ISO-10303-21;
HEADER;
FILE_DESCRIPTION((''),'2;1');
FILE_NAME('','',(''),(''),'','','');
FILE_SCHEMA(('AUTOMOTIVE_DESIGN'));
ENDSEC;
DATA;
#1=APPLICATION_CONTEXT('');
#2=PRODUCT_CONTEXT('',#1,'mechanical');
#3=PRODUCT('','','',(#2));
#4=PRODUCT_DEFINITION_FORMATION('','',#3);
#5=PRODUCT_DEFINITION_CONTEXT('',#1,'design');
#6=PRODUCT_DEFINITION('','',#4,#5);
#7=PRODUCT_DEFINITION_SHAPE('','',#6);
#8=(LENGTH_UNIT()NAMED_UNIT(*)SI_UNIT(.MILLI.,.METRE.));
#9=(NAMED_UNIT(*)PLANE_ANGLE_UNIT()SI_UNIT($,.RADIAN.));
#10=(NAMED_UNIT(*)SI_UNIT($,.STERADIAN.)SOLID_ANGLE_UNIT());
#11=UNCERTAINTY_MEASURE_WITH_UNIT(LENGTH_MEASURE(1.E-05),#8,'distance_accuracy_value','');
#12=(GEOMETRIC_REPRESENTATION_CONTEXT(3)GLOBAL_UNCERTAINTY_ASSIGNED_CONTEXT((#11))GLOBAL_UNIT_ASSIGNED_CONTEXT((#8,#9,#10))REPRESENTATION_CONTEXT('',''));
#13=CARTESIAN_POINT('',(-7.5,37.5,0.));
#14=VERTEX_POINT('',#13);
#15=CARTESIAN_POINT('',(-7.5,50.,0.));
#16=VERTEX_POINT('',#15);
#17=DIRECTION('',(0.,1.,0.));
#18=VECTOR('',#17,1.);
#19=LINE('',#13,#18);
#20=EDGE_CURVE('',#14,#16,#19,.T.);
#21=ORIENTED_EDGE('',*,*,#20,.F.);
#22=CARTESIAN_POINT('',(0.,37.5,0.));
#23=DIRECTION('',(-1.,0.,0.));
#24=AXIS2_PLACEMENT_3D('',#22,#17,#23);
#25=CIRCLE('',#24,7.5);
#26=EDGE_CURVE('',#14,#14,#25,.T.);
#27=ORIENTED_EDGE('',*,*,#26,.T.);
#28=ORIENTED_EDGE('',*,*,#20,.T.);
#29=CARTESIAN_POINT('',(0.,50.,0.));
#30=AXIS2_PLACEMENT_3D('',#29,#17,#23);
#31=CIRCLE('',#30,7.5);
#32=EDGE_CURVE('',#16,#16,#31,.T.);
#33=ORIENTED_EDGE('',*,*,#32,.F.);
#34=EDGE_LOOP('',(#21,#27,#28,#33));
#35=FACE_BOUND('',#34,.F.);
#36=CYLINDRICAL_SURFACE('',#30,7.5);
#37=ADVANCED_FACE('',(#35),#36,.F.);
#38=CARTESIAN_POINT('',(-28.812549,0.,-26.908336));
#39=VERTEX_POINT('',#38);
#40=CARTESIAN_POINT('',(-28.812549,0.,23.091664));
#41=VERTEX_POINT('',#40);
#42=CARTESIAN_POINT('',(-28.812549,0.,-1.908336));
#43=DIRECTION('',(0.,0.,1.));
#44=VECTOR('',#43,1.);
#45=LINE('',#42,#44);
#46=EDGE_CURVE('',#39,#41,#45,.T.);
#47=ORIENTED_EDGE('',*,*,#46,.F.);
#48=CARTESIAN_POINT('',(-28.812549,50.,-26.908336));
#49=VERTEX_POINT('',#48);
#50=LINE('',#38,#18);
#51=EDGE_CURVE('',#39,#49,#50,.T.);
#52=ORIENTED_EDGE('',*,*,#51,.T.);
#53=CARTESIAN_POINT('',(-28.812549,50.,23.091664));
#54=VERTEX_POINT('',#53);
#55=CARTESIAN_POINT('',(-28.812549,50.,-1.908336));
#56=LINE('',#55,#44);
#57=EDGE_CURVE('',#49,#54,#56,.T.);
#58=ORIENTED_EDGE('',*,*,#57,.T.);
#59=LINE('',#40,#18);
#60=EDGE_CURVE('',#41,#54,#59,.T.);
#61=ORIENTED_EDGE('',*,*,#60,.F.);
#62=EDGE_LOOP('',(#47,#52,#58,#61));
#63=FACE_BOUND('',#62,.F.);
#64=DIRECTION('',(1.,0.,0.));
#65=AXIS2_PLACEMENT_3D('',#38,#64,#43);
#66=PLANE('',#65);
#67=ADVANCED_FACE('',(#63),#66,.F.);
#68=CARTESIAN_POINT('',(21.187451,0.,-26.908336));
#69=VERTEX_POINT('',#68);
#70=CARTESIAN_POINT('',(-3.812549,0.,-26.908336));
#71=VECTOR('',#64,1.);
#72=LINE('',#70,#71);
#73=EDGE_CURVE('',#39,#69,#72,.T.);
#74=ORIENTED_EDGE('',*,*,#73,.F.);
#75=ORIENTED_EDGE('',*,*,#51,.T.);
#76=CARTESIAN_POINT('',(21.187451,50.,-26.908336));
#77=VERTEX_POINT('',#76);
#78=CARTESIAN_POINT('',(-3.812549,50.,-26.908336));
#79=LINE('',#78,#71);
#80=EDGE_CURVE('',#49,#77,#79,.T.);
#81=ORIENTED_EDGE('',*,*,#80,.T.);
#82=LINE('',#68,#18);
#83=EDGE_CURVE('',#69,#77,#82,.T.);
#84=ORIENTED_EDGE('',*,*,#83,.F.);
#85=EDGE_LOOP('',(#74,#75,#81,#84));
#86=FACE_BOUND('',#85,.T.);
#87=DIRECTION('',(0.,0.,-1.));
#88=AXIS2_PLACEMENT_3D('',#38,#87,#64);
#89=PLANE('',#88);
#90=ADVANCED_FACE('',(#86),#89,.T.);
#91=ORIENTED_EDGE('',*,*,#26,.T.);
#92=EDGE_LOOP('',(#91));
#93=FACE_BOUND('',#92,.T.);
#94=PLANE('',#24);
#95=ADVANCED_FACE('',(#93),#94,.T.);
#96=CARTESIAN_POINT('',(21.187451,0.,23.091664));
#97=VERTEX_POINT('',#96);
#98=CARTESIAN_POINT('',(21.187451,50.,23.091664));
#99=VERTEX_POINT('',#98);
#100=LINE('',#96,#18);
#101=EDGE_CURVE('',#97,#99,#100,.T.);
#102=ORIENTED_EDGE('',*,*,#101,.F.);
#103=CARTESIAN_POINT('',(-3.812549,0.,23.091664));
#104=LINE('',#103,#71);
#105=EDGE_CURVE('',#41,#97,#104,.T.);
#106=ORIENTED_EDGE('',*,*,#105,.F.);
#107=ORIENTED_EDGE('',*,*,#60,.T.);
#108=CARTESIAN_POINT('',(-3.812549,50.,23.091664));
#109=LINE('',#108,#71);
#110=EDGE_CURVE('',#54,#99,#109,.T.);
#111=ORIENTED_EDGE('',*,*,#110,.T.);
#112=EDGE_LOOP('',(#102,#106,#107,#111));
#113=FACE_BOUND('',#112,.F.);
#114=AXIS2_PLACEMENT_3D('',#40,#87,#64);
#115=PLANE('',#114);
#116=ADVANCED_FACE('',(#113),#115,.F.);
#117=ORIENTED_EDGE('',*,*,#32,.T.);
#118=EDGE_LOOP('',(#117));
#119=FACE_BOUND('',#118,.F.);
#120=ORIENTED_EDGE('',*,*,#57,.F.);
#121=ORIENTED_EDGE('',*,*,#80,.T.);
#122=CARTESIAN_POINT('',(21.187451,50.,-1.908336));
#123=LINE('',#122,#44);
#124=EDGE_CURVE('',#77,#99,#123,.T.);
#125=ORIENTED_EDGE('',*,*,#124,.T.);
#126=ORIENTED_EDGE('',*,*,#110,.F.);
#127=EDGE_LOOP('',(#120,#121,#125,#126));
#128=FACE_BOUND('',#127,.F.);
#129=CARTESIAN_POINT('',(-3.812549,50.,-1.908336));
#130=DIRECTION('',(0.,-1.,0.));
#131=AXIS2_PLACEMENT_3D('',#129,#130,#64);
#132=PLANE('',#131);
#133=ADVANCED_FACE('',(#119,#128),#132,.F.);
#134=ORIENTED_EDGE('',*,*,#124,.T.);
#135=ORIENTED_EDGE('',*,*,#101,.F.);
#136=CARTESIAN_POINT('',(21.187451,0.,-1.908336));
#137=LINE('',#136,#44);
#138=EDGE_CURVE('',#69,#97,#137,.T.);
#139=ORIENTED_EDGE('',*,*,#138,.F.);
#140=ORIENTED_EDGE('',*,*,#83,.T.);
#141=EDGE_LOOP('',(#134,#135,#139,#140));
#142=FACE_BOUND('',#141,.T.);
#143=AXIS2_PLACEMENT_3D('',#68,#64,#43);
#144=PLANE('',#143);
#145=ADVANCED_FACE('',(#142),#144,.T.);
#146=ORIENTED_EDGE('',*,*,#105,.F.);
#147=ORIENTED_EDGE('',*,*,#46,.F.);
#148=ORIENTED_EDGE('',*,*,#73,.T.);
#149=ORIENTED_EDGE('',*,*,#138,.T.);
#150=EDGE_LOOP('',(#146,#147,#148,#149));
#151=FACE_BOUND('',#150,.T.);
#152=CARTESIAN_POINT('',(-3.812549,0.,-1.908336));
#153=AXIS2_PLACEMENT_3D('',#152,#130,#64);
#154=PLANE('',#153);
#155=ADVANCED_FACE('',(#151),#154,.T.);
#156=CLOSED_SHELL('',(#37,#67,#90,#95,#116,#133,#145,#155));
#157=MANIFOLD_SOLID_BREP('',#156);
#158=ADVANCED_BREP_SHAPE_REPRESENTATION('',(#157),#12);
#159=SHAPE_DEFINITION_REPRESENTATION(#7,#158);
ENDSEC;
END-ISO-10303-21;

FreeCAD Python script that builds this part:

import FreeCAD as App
import Part
import Sketcher
from FreeCAD import Vector
Q = App.Units.Quantity

doc = App.newDocument("Part")
body = doc.addObject("PartDesign::Body", "Body")

sketch1 = body.newObject("Sketcher::SketchObject", "Sketch")
sketch1.AttachmentSupport = (doc.getObject("XZ_Plane"), [""])
sketch1.MapMode = "FlatFace"
sketch1.addGeometry([
    Part.LineSegment(Vector(-29, 23, 0), Vector(-29, -27, 0)),
    Part.LineSegment(Vector(-29, -27, 0), Vector(21, -27, 0)),
    Part.LineSegment(Vector(21, -27, 0), Vector(21, 23, 0)),
    Part.LineSegment(Vector(21, 23, 0), Vector(-29, 23, 0)),
], False)
sketch1.addConstraint([
    Sketcher.Constraint("Coincident", 0, 2, 1, 1),
    Sketcher.Constraint("Coincident", 1, 2, 2, 1),
    Sketcher.Constraint("Coincident", 2, 2, 3, 1),
    Sketcher.Constraint("Coincident", 3, 2, 0, 1),
    Sketcher.Constraint("Vertical", 0),
    Sketcher.Constraint("Horizontal", 1),
    Sketcher.Constraint("Vertical", 2),
    Sketcher.Constraint("Horizontal", 3),
    Sketcher.Constraint("Equal", 3, 0),
    Sketcher.Constraint("DistanceX", 1, 1, 1, 2, Q("50 mm")),
    Sketcher.Constraint("DistanceX", 0, 2, -1, 1, Q("28.812549 mm")),
    Sketcher.Constraint("DistanceY", 0, 2, -1, 1, Q("26.908336 mm")),
])
pad1 = body.newObject("PartDesign::Pad", "Pad")
pad1.Profile = sketch1
pad1.Length = 50
pad1.Reversed = True

sketch2 = body.newObject("Sketcher::SketchObject", "Sketch001")
sketch2.AttachmentSupport = (doc.getObject("XZ_Plane"), [""])
sketch2.MapMode = "FlatFace"
sketch2.AttachmentOffset = App.Placement(Vector(0, 0, -50), App.Rotation())
sketch2.addGeometry(Part.Circle(Vector(0, 0, 0), Vector(0, 0, 1), 8), False)
sketch2.addConstraint([
    Sketcher.Constraint("Coincident", 0, 3, -1, 1),
    Sketcher.Constraint("Diameter", 0, Q("15 mm")),
])
pocket1 = body.newObject("PartDesign::Pocket", "Pocket")
pocket1.Profile = sketch2
pocket1.Length = 25
pocket1.Midplane = True

doc.recompute()
